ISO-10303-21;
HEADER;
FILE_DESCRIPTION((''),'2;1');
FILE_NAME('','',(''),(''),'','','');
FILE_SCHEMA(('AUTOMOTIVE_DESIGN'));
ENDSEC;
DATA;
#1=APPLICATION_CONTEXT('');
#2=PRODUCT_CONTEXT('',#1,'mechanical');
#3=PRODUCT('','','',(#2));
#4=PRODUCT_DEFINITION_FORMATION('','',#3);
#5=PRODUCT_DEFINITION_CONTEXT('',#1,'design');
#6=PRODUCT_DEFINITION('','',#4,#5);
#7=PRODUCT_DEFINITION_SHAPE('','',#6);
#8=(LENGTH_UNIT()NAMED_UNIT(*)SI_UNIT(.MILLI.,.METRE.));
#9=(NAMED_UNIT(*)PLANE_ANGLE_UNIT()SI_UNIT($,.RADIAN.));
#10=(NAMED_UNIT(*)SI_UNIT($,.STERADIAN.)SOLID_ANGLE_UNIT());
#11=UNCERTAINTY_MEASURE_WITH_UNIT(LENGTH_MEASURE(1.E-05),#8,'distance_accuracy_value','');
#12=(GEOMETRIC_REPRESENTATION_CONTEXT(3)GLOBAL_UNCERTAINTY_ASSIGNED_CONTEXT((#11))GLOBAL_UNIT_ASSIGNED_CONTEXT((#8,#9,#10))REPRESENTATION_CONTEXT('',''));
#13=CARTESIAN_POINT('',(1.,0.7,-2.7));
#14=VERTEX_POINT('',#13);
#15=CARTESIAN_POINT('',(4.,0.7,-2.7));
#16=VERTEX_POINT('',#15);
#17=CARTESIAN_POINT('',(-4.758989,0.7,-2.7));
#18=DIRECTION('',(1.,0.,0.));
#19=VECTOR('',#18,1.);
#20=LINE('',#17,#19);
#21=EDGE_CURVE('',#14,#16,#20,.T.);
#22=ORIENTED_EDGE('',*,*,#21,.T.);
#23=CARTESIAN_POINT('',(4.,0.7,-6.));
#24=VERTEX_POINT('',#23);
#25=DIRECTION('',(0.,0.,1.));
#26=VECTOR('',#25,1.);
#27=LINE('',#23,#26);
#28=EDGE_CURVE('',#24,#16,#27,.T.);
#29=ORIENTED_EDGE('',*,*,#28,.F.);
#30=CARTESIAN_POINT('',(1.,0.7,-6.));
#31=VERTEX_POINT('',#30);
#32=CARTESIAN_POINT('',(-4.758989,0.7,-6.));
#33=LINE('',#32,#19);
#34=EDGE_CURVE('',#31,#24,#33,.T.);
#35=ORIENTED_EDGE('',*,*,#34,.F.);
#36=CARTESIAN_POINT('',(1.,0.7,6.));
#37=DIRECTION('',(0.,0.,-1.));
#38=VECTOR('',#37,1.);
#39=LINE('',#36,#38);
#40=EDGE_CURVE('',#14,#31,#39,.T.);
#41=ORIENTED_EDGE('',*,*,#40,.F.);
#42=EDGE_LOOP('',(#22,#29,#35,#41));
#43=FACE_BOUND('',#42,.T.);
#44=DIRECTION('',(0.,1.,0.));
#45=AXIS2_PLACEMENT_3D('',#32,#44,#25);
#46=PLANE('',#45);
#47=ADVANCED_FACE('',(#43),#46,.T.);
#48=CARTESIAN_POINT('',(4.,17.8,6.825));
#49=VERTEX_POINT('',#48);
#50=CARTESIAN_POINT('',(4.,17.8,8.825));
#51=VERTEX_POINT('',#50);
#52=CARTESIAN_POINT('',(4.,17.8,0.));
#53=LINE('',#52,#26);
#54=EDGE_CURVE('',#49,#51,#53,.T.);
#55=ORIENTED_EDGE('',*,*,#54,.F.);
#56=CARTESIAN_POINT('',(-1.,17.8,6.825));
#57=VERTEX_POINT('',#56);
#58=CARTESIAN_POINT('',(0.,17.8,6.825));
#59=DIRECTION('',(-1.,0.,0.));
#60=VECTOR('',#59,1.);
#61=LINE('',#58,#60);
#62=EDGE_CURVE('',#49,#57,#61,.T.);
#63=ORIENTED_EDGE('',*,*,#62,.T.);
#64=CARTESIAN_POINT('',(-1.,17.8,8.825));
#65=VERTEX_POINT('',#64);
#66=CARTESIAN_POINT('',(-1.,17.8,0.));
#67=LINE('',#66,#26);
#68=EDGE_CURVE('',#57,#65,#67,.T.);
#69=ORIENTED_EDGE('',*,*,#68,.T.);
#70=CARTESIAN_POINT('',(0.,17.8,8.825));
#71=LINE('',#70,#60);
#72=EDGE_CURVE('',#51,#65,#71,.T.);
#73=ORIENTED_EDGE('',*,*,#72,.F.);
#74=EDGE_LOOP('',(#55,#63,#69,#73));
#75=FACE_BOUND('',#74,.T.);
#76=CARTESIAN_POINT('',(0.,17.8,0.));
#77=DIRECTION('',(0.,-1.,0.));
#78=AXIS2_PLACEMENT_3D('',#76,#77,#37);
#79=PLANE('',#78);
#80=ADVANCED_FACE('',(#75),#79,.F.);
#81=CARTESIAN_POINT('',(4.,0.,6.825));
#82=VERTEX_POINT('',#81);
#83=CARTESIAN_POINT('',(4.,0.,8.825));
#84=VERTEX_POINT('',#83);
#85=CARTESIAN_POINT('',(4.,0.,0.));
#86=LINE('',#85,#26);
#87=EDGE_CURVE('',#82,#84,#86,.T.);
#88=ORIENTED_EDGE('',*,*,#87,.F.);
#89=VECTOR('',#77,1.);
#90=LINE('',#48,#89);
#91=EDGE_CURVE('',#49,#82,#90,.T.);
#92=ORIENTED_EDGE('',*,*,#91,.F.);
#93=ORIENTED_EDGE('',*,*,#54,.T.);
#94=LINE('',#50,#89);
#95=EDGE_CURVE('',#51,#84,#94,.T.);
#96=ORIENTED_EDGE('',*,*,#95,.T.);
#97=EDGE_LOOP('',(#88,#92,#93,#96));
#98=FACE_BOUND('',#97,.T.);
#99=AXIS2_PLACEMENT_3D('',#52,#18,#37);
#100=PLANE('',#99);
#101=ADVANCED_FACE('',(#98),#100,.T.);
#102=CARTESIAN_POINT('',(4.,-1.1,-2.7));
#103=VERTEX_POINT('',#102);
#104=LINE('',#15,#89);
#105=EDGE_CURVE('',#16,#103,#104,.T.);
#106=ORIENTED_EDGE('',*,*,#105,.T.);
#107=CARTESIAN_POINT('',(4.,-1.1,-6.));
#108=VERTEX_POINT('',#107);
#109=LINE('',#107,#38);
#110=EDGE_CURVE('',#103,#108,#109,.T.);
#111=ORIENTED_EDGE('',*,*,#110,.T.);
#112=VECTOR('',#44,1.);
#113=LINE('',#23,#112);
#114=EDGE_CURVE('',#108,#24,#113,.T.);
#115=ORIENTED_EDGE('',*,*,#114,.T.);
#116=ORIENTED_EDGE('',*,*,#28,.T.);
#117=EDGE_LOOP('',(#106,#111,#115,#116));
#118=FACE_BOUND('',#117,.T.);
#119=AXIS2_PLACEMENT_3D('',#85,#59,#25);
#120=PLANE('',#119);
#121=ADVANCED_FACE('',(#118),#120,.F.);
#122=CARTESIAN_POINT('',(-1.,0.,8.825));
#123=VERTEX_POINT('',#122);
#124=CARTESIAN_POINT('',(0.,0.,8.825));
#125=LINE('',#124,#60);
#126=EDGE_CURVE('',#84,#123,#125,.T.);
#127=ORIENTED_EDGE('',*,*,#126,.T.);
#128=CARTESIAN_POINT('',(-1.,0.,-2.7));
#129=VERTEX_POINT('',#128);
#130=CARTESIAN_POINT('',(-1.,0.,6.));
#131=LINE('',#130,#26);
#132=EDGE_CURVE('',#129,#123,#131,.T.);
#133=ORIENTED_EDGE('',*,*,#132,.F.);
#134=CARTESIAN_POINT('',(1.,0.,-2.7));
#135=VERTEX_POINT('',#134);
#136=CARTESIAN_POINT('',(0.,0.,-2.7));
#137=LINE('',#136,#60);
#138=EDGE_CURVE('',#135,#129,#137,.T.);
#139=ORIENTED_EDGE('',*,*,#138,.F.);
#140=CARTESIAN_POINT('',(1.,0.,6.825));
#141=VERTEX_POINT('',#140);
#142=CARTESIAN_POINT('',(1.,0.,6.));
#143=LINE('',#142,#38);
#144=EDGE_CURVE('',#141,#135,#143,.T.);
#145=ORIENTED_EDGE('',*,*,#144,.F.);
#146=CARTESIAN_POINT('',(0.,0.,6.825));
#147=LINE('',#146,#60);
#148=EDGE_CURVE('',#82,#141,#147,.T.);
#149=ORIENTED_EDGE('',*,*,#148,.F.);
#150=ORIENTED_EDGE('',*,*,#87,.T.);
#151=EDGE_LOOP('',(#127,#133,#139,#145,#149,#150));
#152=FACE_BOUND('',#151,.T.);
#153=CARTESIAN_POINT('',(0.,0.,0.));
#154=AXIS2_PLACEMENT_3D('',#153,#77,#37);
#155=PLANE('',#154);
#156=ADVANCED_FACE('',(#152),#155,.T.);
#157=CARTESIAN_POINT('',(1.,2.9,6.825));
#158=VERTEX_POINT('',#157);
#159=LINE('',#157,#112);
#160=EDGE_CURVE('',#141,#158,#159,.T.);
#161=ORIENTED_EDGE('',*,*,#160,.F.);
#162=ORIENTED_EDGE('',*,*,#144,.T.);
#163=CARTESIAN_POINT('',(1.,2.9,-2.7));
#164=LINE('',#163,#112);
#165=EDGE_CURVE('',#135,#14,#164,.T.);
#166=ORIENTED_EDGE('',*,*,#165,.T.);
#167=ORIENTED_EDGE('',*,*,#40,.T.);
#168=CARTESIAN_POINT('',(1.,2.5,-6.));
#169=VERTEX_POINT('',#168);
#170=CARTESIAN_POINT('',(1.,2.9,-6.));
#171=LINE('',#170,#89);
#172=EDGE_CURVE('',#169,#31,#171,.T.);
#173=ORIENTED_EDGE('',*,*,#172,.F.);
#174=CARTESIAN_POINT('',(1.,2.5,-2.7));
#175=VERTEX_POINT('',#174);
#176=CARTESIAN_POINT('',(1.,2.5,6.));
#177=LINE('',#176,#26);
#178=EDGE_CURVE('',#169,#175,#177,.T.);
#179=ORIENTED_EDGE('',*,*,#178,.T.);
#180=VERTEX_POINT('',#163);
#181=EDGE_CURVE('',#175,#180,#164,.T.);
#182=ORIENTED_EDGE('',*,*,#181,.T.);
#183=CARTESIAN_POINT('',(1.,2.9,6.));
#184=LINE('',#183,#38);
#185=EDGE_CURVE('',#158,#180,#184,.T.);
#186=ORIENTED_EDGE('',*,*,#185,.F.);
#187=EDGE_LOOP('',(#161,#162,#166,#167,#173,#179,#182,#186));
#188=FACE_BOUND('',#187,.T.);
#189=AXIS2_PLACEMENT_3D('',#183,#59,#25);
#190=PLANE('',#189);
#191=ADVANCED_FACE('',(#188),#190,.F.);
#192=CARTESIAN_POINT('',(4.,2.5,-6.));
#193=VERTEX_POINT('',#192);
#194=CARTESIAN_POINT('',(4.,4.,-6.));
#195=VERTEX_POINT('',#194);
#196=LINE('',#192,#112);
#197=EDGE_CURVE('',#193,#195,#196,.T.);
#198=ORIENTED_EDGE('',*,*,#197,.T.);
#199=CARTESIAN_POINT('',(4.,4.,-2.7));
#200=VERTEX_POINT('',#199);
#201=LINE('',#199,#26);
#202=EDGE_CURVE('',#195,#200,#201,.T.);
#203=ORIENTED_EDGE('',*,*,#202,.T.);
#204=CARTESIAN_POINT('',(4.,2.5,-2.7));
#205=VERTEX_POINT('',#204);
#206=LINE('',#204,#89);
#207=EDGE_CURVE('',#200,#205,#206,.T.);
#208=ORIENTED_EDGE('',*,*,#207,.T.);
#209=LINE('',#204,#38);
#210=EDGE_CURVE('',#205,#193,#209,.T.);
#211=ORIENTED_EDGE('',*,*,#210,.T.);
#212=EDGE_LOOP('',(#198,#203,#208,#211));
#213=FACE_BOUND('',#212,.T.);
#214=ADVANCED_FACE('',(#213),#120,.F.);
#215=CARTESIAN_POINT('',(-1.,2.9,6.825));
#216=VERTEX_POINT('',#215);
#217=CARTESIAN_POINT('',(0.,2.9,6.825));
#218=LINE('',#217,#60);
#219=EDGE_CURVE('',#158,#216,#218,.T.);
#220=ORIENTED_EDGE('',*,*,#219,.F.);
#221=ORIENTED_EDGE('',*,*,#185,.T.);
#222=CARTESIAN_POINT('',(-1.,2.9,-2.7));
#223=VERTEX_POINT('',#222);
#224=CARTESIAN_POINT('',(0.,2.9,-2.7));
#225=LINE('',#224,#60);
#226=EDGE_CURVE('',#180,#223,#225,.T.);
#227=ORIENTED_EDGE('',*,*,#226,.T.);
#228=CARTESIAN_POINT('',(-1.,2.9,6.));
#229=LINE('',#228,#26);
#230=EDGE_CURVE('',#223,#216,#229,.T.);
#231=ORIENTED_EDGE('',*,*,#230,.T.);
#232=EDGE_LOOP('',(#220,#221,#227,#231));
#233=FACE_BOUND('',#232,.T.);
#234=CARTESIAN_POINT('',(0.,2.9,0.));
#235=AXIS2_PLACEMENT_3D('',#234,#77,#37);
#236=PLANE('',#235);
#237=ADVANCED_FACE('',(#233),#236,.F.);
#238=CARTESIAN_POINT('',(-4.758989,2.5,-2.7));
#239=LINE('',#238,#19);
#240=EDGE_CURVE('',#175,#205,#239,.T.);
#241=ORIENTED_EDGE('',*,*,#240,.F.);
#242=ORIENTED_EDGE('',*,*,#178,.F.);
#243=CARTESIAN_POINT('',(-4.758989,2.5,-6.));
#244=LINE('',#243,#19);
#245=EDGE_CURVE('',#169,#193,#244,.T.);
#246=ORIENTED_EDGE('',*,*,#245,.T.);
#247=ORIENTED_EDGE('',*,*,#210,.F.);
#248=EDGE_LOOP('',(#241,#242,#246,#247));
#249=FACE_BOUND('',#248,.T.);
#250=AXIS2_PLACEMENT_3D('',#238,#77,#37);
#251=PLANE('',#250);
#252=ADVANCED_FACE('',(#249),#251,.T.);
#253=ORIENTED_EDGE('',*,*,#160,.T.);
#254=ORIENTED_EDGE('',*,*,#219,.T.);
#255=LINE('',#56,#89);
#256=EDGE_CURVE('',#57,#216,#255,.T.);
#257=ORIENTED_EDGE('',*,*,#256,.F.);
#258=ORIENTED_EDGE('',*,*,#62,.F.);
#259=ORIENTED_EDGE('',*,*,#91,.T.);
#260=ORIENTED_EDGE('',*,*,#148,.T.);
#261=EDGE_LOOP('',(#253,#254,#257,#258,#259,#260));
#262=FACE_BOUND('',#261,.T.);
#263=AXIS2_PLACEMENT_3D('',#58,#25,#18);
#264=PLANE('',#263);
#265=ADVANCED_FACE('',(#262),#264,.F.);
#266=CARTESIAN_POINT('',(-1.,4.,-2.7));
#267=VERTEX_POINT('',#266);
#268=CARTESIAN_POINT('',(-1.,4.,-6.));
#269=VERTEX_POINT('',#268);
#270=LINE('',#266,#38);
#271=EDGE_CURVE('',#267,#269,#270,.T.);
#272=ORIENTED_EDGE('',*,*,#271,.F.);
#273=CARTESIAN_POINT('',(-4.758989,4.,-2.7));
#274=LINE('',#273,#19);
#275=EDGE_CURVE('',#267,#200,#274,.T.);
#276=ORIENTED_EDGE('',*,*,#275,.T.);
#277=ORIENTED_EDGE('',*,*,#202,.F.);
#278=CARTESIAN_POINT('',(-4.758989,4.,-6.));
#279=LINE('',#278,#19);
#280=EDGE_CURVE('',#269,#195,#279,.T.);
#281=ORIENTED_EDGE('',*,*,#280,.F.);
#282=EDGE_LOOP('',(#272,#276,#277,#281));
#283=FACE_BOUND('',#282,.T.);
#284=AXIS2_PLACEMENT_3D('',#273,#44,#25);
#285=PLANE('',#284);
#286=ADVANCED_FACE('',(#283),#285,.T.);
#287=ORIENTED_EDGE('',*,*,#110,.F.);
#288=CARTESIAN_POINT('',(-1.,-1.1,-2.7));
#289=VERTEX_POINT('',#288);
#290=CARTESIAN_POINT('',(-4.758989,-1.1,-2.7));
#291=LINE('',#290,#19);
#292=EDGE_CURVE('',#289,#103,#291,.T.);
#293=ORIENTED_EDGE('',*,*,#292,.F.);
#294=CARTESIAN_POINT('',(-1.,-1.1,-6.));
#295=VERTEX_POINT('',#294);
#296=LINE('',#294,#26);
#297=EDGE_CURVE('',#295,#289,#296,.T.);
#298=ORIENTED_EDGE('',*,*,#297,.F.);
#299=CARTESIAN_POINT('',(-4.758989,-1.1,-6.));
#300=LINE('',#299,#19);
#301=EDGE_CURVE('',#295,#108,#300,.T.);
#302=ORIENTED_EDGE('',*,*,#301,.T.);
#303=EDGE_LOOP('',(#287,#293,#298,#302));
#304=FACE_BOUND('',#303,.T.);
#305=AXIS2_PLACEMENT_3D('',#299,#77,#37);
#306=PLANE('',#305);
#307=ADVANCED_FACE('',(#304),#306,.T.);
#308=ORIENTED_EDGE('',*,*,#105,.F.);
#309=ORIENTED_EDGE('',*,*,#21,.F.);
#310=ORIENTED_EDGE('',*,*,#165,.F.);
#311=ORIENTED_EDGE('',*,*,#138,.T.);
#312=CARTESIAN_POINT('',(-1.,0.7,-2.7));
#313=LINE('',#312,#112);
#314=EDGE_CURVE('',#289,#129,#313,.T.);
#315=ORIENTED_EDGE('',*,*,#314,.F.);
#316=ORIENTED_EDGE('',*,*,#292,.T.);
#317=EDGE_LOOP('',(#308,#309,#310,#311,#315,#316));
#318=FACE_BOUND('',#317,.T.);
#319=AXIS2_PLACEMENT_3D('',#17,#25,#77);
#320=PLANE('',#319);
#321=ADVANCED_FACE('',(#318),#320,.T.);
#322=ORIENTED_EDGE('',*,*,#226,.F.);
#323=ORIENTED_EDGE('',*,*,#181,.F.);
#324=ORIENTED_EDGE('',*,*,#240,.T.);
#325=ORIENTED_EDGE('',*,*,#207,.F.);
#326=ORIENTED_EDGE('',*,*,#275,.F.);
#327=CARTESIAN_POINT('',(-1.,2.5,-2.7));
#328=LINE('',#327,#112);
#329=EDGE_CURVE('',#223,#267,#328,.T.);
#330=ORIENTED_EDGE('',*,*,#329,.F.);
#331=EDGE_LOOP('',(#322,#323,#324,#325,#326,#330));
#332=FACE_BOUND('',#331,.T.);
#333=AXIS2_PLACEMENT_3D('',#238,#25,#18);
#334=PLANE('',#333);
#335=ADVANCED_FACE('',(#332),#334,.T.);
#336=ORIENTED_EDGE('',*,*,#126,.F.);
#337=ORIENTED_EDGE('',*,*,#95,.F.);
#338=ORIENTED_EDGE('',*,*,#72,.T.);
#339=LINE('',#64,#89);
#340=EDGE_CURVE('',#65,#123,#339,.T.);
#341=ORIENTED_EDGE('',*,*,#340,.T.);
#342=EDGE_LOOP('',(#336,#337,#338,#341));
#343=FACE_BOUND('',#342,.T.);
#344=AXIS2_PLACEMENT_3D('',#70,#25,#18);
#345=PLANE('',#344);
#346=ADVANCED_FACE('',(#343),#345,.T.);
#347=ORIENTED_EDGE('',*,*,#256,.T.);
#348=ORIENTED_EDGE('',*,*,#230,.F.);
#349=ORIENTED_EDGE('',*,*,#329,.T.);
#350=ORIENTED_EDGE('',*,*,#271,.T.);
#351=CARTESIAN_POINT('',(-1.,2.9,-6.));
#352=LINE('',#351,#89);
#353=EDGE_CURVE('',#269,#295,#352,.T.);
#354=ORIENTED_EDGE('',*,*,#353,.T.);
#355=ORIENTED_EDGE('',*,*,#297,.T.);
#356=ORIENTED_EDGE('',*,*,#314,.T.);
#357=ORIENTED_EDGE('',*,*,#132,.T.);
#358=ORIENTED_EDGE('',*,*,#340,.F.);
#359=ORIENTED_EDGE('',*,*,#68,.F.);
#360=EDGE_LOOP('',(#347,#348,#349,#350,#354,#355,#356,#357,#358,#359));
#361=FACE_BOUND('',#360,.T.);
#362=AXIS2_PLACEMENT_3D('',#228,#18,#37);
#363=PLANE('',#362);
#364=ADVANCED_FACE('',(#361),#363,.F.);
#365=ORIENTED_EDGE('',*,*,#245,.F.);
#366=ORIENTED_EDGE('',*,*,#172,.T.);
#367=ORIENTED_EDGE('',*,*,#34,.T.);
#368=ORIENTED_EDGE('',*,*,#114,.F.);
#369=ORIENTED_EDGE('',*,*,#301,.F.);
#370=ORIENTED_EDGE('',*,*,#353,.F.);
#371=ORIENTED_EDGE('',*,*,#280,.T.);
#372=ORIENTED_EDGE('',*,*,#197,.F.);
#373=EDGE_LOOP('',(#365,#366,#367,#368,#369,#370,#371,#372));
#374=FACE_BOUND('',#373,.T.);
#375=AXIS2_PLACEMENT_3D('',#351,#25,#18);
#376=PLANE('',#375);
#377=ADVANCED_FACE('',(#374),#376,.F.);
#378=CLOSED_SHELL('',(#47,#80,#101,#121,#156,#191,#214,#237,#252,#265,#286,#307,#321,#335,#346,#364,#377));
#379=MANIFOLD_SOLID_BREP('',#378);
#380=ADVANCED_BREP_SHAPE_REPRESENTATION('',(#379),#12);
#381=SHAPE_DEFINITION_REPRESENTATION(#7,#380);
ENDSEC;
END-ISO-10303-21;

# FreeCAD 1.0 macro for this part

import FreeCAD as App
import Part
import Sketcher


def add_polygon(sketch, points):
    """Adds a closed chain of lines whose ends are joined by coincident constraints."""
    first, n = sketch.GeometryCount, len(points)
    for a, b in zip(points, points[1:] + points[:1]):
        sketch.addGeometry(Part.LineSegment(App.Vector(*a, 0), App.Vector(*b, 0)), False)
    for i in range(n):
        sketch.addConstraint(Sketcher.Constraint("Coincident", first + i, 2, first + (i + 1) % n, 1))

doc = App.newDocument("Part")
params = doc.addObject("Spreadsheet::Sheet", "Params")
for row, (alias, value) in enumerate([
    ("sketch1_width", "2 mm"),
    ("sketch1_height", "12 mm"),
    ("pad1_length", "2.9 mm"),
    ("sketch2_width", "1.5 mm"),
    ("sketch2_width2", "1.8 mm"),
    ("sketch2_height", "3.3 mm"),
    ("pad2_length", "5 mm"),
    ("sketch3_width", "2.9 mm"),
    ("pad3_length", "2 mm"),
    ("sketch4_width", "5 mm"),
    ("sketch4_height", "2 mm"),
    ("pad4_length", "17.8 mm"),
], start=1):
    params.set(f"A{row}", alias)
    params.set(f"B{row}", "=" + value)
    params.setAlias(f"B{row}", alias)

body = doc.addObject("PartDesign::Body", "Body")

# Sketch on XZ plane
sketch1 = doc.addObject("Sketcher::SketchObject", "Sketch")
body.addObject(sketch1)
sketch1.AttachmentSupport = (doc.XZ_Plane, [""])
sketch1.MapMode = "FlatFace"
add_polygon(sketch1, [(-1, -6), (-1, 6), (1, 6), (1, -6)])  # lines 0-3
sketch1.addConstraint(Sketcher.Constraint("Vertical", 0))
sketch1.addConstraint(Sketcher.Constraint("Horizontal", 1))
sketch1.addConstraint(Sketcher.Constraint("Vertical", 2))
sketch1.addConstraint(Sketcher.Constraint("Horizontal", 3))
sketch1.addConstraint(Sketcher.Constraint("Symmetric", 0, 2, 2, 2, -1, 1))
sketch1.addConstraint(Sketcher.Constraint("DistanceX", 1, 1, 1, 2, 2.0))
sketch1.addConstraint(Sketcher.Constraint("DistanceY", 0, 1, 0, 2, 12.0))
sketch1.setExpression("Constraints[9]", "Params.sketch1_width")
sketch1.setExpression("Constraints[10]", "Params.sketch1_height")
pad1 = doc.addObject("PartDesign::Pad", "Pad")
body.addObject(pad1)
pad1.Profile = sketch1
pad1.setExpression("Length", "Params.pad1_length")
pad1.Reversed = True

# Sketch on YZ plane
sketch2 = doc.addObject("Sketcher::SketchObject", "Sketch001")
body.addObject(sketch2)
sketch2.AttachmentSupport = (doc.YZ_Plane, [""])
sketch2.MapMode = "FlatFace"
sketch2.AttachmentOffset = App.Placement(App.Vector(0, 0, -1), App.Rotation())
add_polygon(sketch2, [(4, -2.7), (2.5, -2.7), (2.5, -6), (4, -6)])  # lines 0-3
add_polygon(sketch2, [(0.7, -2.7), (-1.1, -2.7), (-1.1, -6), (0.7, -6)])  # lines 4-7
sketch2.addConstraint(Sketcher.Constraint("Horizontal", 0))
sketch2.addConstraint(Sketcher.Constraint("Vertical", 1))
sketch2.addConstraint(Sketcher.Constraint("Horizontal", 2))
sketch2.addConstraint(Sketcher.Constraint("Vertical", 3))
sketch2.addConstraint(Sketcher.Constraint("Horizontal", 4))
sketch2.addConstraint(Sketcher.Constraint("Vertical", 5))
sketch2.addConstraint(Sketcher.Constraint("Horizontal", 6))
sketch2.addConstraint(Sketcher.Constraint("Vertical", 7))
sketch2.addConstraint(Sketcher.Constraint("Horizontal", 3, 2, 4, 2))
sketch2.addConstraint(Sketcher.Constraint("Horizontal", 2, 2, 5, 2))
sketch2.addConstraint(Sketcher.Constraint("DistanceX", 0, 2, 0, 1, 1.5))
sketch2.addConstraint(Sketcher.Constraint("DistanceX", 4, 2, 4, 1, 1.8))
sketch2.addConstraint(Sketcher.Constraint("DistanceY", 1, 2, 1, 1, 3.3))
sketch2.addConstraint(Sketcher.Constraint("DistanceY", 1, 2, -1, 1, 6.0))
sketch2.addConstraint(Sketcher.Constraint("DistanceX", -1, 1, 2, 2, 4.0))
sketch2.addConstraint(Sketcher.Constraint("DistanceX", 4, 2, -1, 1, 1.1))
sketch2.setExpression("Constraints[18]", "Params.sketch2_width")
sketch2.setExpression("Constraints[19]", "Params.sketch2_width2")
sketch2.setExpression("Constraints[20]", "Params.sketch2_height")
pad2 = doc.addObject("PartDesign::Pad", "Pad001")
body.addObject(pad2)
pad2.Profile = sketch2
pad2.setExpression("Length", "Params.pad2_length")

# Sketch on YZ plane
sketch3 = doc.addObject("Sketcher::SketchObject", "Sketch002")
body.addObject(sketch3)
sketch3.AttachmentSupport = (doc.YZ_Plane, [""])
sketch3.MapMode = "FlatFace"
sketch3.AttachmentOffset = App.Placement(App.Vector(0, 0, -1), App.Rotation())
add_polygon(sketch3, [(2.9, -2.7), (0, -2.7), (0, 7.8), (2.9, 7.8)])  # lines 0-3
sketch3.addConstraint(Sketcher.Constraint("Horizontal", 0))
sketch3.addConstraint(Sketcher.Constraint("Vertical", 1))
sketch3.addConstraint(Sketcher.Constraint("Horizontal", 2))
sketch3.addConstraint(Sketcher.Constraint("Vertical", 3))
sketch3.addConstraint(Sketcher.Constraint("PointOnObject", 0, 2, -2))
sketch3.addConstraint(Sketcher.Constraint("DistanceX", 0, 2, 0, 1, 2.9))
sketch3.addConstraint(Sketcher.Constraint("DistanceY", 0, 2, -1, 1, 2.7))
sketch3.addConstraint(Sketcher.Constraint("DistanceY", 1, 1, 1, 2, 10.525))
sketch3.setExpression("Constraints[9]", "Params.sketch3_width")
pad3 = doc.addObject("PartDesign::Pad", "Pad002")
body.addObject(pad3)
pad3.Profile = sketch3
pad3.setExpression("Length", "Params.pad3_length")

# Sketch on XZ plane
sketch4 = doc.addObject("Sketcher::SketchObject", "Sketch003")
body.addObject(sketch4)
sketch4.AttachmentSupport = (doc.XZ_Plane, [""])
sketch4.MapMode = "FlatFace"
add_polygon(sketch4, [(-1, 6.8), (-1, 8.8), (4, 8.8), (4, 6.8)])  # lines 0-3
sketch4.addConstraint(Sketcher.Constraint("Vertical", 0))
sketch4.addConstraint(Sketcher.Constraint("Horizontal", 1))
sketch4.addConstraint(Sketcher.Constraint("Vertical", 2))
sketch4.addConstraint(Sketcher.Constraint("Horizontal", 3))
sketch4.addConstraint(Sketcher.Constraint("DistanceX", 1, 1, 1, 2, 5.0))
sketch4.addConstraint(Sketcher.Constraint("DistanceY", 0, 1, 0, 2, 2.0))
sketch4.addConstraint(Sketcher.Constraint("DistanceX", 0, 2, -1, 1, 1.0))
sketch4.addConstraint(Sketcher.Constraint("DistanceY", -1, 1, 0, 2, 8.825))
sketch4.setExpression("Constraints[8]", "Params.sketch4_width")
sketch4.setExpression("Constraints[9]", "Params.sketch4_height")
pad4 = doc.addObject("PartDesign::Pad", "Pad003")
body.addObject(pad4)
pad4.Profile = sketch4
pad4.setExpression("Length", "Params.pad4_length")
pad4.Reversed = True

doc.recompute()
